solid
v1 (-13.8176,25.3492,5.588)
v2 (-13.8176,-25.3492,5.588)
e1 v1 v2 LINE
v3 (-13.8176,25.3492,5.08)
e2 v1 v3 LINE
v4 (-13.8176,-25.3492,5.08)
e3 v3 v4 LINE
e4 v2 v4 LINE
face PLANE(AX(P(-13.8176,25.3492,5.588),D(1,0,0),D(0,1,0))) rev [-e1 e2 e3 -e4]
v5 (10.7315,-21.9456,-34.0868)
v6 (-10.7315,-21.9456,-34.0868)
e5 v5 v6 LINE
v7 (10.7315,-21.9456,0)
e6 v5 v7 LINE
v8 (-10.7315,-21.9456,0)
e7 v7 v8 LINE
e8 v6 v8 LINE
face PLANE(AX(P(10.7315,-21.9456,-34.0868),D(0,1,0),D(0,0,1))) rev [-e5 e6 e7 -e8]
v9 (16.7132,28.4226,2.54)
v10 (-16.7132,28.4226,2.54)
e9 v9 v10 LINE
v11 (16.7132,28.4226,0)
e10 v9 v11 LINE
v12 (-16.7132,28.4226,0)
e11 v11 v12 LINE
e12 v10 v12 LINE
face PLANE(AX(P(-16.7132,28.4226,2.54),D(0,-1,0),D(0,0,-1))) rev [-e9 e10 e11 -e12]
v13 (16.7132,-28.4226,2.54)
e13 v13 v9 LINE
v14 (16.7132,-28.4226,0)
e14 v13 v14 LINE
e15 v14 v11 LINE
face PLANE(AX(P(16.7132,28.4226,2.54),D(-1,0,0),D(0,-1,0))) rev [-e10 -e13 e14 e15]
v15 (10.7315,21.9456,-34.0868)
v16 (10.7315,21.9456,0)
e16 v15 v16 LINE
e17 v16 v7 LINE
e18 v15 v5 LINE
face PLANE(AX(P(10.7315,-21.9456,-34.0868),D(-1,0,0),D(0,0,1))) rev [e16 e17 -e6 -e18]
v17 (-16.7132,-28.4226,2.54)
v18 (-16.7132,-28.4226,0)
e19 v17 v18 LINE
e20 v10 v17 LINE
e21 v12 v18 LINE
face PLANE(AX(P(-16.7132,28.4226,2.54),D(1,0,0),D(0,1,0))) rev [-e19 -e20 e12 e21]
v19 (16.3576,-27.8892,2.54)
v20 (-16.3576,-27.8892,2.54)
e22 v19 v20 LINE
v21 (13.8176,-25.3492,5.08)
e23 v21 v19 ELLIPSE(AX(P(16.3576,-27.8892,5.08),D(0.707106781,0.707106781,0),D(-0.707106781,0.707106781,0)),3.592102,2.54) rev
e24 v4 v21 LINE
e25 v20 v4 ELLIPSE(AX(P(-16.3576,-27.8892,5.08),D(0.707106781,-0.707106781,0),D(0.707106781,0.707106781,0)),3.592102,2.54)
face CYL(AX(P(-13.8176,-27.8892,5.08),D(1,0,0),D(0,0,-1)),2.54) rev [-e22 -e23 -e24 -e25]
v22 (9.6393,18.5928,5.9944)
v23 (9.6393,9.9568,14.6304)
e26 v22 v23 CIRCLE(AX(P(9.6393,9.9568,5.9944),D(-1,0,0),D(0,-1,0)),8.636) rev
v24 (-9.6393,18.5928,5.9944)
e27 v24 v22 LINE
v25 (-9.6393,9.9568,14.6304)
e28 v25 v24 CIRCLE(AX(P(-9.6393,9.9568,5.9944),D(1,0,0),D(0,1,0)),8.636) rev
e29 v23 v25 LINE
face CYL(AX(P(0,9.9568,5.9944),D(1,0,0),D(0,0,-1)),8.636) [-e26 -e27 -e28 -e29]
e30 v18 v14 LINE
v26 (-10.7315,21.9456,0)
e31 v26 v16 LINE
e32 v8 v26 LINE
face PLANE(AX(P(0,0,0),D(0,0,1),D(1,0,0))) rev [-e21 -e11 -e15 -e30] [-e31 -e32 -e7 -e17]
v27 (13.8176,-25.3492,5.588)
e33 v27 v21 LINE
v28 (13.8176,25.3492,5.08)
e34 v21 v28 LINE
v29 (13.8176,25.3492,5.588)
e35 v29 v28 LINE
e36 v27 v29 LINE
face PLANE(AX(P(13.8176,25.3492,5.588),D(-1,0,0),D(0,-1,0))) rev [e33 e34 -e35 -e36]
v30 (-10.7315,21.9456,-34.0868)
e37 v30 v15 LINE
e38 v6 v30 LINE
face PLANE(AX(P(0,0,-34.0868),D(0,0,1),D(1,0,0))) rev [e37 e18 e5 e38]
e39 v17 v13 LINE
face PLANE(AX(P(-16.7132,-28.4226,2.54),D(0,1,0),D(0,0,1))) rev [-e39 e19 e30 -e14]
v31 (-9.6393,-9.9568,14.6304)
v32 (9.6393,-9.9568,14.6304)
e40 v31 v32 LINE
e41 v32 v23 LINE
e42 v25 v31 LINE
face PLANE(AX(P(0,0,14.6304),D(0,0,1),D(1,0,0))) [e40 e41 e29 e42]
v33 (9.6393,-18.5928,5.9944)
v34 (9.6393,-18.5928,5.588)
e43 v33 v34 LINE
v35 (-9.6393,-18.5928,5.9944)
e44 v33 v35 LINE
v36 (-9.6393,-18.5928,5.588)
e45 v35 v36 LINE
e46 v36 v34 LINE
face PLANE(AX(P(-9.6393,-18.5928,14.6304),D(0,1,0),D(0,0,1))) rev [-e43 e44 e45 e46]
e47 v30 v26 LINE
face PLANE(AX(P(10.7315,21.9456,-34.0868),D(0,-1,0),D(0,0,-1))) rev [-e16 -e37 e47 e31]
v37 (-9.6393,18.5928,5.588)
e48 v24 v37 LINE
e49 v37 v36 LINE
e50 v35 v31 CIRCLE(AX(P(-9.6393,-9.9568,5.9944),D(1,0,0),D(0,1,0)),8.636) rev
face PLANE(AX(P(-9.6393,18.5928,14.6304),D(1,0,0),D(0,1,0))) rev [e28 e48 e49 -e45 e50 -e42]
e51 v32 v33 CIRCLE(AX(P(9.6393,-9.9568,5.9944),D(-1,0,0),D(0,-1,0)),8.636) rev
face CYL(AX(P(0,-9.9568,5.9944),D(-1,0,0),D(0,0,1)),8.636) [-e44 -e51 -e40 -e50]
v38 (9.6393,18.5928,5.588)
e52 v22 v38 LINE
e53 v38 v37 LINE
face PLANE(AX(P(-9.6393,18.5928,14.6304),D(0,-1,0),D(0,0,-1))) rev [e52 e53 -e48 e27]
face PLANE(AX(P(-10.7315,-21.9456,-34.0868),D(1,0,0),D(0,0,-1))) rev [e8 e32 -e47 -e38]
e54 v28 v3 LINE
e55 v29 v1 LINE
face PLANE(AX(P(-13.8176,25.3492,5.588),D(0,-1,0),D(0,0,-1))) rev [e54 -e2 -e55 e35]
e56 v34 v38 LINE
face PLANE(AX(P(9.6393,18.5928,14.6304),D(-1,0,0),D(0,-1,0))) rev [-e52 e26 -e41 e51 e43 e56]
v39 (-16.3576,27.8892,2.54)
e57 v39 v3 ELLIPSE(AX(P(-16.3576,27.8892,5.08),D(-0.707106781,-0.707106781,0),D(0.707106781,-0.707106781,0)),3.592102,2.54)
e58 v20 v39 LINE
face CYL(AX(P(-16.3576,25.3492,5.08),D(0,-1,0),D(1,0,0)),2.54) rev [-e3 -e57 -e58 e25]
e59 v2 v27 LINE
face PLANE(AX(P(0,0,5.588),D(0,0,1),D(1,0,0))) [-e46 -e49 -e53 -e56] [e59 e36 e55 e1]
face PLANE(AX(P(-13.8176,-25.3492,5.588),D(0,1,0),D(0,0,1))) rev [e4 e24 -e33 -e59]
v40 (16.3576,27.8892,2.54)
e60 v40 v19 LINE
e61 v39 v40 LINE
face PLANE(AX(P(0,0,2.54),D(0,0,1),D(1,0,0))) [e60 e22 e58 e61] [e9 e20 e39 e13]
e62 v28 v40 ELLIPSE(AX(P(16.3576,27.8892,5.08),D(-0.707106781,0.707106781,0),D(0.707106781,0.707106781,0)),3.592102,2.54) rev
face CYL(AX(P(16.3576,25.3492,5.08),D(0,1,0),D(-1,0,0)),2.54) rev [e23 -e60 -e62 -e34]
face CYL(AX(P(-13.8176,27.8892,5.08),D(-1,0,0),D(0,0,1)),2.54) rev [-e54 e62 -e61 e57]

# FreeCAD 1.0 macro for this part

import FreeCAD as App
import Part
import Sketcher
Q = App.Units.Quantity


def edges_at(feature, points):
    """Names of the edges that pass closest to the given points."""
    edges = feature.Shape.Edges
    near = lambda p: min(range(len(edges)), key=lambda i: edges[i].distToShape(Part.Vertex(*p))[0])
    return sorted({f"Edge{near(p) + 1}" for p in points})

doc = App.newDocument("Part")
body = doc.addObject("PartDesign::Body", "Body")

# Sketch on XY plane
sketch1 = doc.addObject("Sketcher::SketchObject", "Sketch")
body.addObject(sketch1)
sketch1.AttachmentSupport = (doc.XY_Plane, [""])
sketch1.MapMode = "FlatFace"
sketch1.addGeometry([
    Part.LineSegment(App.Vector(-17, 28, 0), App.Vector(-17, -28, 0)),
    Part.LineSegment(App.Vector(-17, -28, 0), App.Vector(17, -28, 0)),
    Part.LineSegment(App.Vector(17, -28, 0), App.Vector(17, 28, 0)),
    Part.LineSegment(App.Vector(17, 28, 0), App.Vector(-17, 28, 0)),
], False)
sketch1.addConstraint([
    Sketcher.Constraint("Coincident", 0, 2, 1, 1),
    Sketcher.Constraint("Coincident", 1, 2, 2, 1),
    Sketcher.Constraint("Coincident", 2, 2, 3, 1),
    Sketcher.Constraint("Coincident", 3, 2, 0, 1),
    Sketcher.Constraint("Vertical", 0),
    Sketcher.Constraint("Horizontal", 1),
    Sketcher.Constraint("Vertical", 2),
    Sketcher.Constraint("Horizontal", 3),
    Sketcher.Constraint("Symmetric", 0, 2, 2, 2, -1, 1),
    Sketcher.Constraint("DistanceX", 1, 1, 1, 2, Q("1.316 in")),
    Sketcher.Constraint("DistanceY", 0, 2, 0, 1, Q("2.238 in")),
])
pad1 = doc.addObject("PartDesign::Pad", "Pad")
body.addObject(pad1)
pad1.Profile = sketch1
pad1.Length = Q("0.1 in")

# Sketch on XY plane
sketch2 = doc.addObject("Sketcher::SketchObject", "Sketch001")
body.addObject(sketch2)
sketch2.AttachmentSupport = (doc.XY_Plane, [""])
sketch2.MapMode = "FlatFace"
sketch2.AttachmentOffset = App.Placement(App.Vector(0, 0, 0.1 * 25.4), App.Rotation())
sketch2.addGeometry([
    Part.LineSegment(App.Vector(-14, 25, 0), App.Vector(-14, -25, 0)),
    Part.LineSegment(App.Vector(-14, -25, 0), App.Vector(14, -25, 0)),
    Part.LineSegment(App.Vector(14, -25, 0), App.Vector(14, 25, 0)),
    Part.LineSegment(App.Vector(14, 25, 0), App.Vector(-14, 25, 0)),
], False)
sketch2.addConstraint([
    Sketcher.Constraint("Coincident", 0, 2, 1, 1),
    Sketcher.Constraint("Coincident", 1, 2, 2, 1),
    Sketcher.Constraint("Coincident", 2, 2, 3, 1),
    Sketcher.Constraint("Coincident", 3, 2, 0, 1),
    Sketcher.Constraint("Vertical", 0),
    Sketcher.Constraint("Horizontal", 1),
    Sketcher.Constraint("Vertical", 2),
    Sketcher.Constraint("Horizontal", 3),
    Sketcher.Constraint("Symmetric", 0, 2, 2, 2, -1, 1),
    Sketcher.Constraint("DistanceX", 1, 1, 1, 2, Q("1.088 in")),
    Sketcher.Constraint("DistanceY", 0, 2, 0, 1, Q("1.996 in")),
])
pad2 = doc.addObject("PartDesign::Pad", "Pad001")
body.addObject(pad2)
pad2.Profile = sketch2
pad2.Length = Q("0.12 in")

# Sketch on XY plane
sketch3 = doc.addObject("Sketcher::SketchObject", "Sketch002")
body.addObject(sketch3)
sketch3.AttachmentSupport = (doc.XY_Plane, [""])
sketch3.MapMode = "FlatFace"
sketch3.AttachmentOffset = App.Placement(App.Vector(0, 0, 0.22 * 25.4), App.Rotation())
sketch3.addGeometry([
    Part.LineSegment(App.Vector(-10, 19, 0), App.Vector(-10, -19, 0)),
    Part.LineSegment(App.Vector(-10, -19, 0), App.Vector(10, -19, 0)),
    Part.LineSegment(App.Vector(10, -19, 0), App.Vector(10, 19, 0)),
    Part.LineSegment(App.Vector(10, 19, 0), App.Vector(-10, 19, 0)),
], False)
sketch3.addConstraint([
    Sketcher.Constraint("Coincident", 0, 2, 1, 1),
    Sketcher.Constraint("Coincident", 1, 2, 2, 1),
    Sketcher.Constraint("Coincident", 2, 2, 3, 1),
    Sketcher.Constraint("Coincident", 3, 2, 0, 1),
    Sketcher.Constraint("Vertical", 0),
    Sketcher.Constraint("Horizontal", 1),
    Sketcher.Constraint("Vertical", 2),
    Sketcher.Constraint("Horizontal", 3),
    Sketcher.Constraint("Symmetric", 0, 2, 2, 2, -1, 1),
    Sketcher.Constraint("DistanceX", 1, 1, 1, 2, Q("0.759 in")),
    Sketcher.Constraint("DistanceY", 0, 2, 0, 1, Q("1.464 in")),
])
pad3 = doc.addObject("PartDesign::Pad", "Pad002")
body.addObject(pad3)
pad3.Profile = sketch3
pad3.Length = Q("0.356 in")
doc.recompute()

fillet = doc.addObject("PartDesign::Fillet", "Fillet")
body.addObject(fillet)
fillet.Base = (pad3, edges_at(pad3, [
    (13.818, 0, 2.54),
    (0, 25.349, 2.54),
    (-13.818, 0, 2.54),
    (0, -25.349, 2.54),
]))
fillet.Radius = Q("0.1 in")
doc.recompute()

fillet2 = doc.addObject("PartDesign::Fillet", "Fillet001")
body.addObject(fillet2)
fillet2.Base = (fillet, edges_at(fillet, [(0, 18.593, 14.63), (0, -18.593, 14.63)]))
fillet2.Radius = Q("0.34 in")

# Sketch on XY plane
sketch4 = doc.addObject("Sketcher::SketchObject", "Sketch003")
body.addObject(sketch4)
sketch4.AttachmentSupport = (doc.XY_Plane, [""])
sketch4.MapMode = "FlatFace"
sketch4.addGeometry([
    Part.LineSegment(App.Vector(11, 22, 0), App.Vector(11, -22, 0)),
    Part.LineSegment(App.Vector(11, -22, 0), App.Vector(-11, -22, 0)),
    Part.LineSegment(App.Vector(-11, -22, 0), App.Vector(-11, 22, 0)),
    Part.LineSegment(App.Vector(-11, 22, 0), App.Vector(11, 22, 0)),
], False)
sketch4.addConstraint([
    Sketcher.Constraint("Coincident", 0, 2, 1, 1),
    Sketcher.Constraint("Coincident", 1, 2, 2, 1),
    Sketcher.Constraint("Coincident", 2, 2, 3, 1),
    Sketcher.Constraint("Coincident", 3, 2, 0, 1),
    Sketcher.Constraint("Vertical", 0),
    Sketcher.Constraint("Horizontal", 1),
    Sketcher.Constraint("Vertical", 2),
    Sketcher.Constraint("Horizontal", 3),
    Sketcher.Constraint("Symmetric", 0, 2, 2, 2, -1, 1),
    Sketcher.Constraint("DistanceX", 1, 2, 1, 1, Q("0.845 in")),
    Sketcher.Constraint("DistanceY", 0, 2, 0, 1, Q("1.728 in")),
])
pad4 = doc.addObject("PartDesign::Pad", "Pad003")
body.addObject(pad4)
pad4.Profile = sketch4
pad4.Length = Q("1.342 in")
pad4.Reversed = True

doc.recompute()
